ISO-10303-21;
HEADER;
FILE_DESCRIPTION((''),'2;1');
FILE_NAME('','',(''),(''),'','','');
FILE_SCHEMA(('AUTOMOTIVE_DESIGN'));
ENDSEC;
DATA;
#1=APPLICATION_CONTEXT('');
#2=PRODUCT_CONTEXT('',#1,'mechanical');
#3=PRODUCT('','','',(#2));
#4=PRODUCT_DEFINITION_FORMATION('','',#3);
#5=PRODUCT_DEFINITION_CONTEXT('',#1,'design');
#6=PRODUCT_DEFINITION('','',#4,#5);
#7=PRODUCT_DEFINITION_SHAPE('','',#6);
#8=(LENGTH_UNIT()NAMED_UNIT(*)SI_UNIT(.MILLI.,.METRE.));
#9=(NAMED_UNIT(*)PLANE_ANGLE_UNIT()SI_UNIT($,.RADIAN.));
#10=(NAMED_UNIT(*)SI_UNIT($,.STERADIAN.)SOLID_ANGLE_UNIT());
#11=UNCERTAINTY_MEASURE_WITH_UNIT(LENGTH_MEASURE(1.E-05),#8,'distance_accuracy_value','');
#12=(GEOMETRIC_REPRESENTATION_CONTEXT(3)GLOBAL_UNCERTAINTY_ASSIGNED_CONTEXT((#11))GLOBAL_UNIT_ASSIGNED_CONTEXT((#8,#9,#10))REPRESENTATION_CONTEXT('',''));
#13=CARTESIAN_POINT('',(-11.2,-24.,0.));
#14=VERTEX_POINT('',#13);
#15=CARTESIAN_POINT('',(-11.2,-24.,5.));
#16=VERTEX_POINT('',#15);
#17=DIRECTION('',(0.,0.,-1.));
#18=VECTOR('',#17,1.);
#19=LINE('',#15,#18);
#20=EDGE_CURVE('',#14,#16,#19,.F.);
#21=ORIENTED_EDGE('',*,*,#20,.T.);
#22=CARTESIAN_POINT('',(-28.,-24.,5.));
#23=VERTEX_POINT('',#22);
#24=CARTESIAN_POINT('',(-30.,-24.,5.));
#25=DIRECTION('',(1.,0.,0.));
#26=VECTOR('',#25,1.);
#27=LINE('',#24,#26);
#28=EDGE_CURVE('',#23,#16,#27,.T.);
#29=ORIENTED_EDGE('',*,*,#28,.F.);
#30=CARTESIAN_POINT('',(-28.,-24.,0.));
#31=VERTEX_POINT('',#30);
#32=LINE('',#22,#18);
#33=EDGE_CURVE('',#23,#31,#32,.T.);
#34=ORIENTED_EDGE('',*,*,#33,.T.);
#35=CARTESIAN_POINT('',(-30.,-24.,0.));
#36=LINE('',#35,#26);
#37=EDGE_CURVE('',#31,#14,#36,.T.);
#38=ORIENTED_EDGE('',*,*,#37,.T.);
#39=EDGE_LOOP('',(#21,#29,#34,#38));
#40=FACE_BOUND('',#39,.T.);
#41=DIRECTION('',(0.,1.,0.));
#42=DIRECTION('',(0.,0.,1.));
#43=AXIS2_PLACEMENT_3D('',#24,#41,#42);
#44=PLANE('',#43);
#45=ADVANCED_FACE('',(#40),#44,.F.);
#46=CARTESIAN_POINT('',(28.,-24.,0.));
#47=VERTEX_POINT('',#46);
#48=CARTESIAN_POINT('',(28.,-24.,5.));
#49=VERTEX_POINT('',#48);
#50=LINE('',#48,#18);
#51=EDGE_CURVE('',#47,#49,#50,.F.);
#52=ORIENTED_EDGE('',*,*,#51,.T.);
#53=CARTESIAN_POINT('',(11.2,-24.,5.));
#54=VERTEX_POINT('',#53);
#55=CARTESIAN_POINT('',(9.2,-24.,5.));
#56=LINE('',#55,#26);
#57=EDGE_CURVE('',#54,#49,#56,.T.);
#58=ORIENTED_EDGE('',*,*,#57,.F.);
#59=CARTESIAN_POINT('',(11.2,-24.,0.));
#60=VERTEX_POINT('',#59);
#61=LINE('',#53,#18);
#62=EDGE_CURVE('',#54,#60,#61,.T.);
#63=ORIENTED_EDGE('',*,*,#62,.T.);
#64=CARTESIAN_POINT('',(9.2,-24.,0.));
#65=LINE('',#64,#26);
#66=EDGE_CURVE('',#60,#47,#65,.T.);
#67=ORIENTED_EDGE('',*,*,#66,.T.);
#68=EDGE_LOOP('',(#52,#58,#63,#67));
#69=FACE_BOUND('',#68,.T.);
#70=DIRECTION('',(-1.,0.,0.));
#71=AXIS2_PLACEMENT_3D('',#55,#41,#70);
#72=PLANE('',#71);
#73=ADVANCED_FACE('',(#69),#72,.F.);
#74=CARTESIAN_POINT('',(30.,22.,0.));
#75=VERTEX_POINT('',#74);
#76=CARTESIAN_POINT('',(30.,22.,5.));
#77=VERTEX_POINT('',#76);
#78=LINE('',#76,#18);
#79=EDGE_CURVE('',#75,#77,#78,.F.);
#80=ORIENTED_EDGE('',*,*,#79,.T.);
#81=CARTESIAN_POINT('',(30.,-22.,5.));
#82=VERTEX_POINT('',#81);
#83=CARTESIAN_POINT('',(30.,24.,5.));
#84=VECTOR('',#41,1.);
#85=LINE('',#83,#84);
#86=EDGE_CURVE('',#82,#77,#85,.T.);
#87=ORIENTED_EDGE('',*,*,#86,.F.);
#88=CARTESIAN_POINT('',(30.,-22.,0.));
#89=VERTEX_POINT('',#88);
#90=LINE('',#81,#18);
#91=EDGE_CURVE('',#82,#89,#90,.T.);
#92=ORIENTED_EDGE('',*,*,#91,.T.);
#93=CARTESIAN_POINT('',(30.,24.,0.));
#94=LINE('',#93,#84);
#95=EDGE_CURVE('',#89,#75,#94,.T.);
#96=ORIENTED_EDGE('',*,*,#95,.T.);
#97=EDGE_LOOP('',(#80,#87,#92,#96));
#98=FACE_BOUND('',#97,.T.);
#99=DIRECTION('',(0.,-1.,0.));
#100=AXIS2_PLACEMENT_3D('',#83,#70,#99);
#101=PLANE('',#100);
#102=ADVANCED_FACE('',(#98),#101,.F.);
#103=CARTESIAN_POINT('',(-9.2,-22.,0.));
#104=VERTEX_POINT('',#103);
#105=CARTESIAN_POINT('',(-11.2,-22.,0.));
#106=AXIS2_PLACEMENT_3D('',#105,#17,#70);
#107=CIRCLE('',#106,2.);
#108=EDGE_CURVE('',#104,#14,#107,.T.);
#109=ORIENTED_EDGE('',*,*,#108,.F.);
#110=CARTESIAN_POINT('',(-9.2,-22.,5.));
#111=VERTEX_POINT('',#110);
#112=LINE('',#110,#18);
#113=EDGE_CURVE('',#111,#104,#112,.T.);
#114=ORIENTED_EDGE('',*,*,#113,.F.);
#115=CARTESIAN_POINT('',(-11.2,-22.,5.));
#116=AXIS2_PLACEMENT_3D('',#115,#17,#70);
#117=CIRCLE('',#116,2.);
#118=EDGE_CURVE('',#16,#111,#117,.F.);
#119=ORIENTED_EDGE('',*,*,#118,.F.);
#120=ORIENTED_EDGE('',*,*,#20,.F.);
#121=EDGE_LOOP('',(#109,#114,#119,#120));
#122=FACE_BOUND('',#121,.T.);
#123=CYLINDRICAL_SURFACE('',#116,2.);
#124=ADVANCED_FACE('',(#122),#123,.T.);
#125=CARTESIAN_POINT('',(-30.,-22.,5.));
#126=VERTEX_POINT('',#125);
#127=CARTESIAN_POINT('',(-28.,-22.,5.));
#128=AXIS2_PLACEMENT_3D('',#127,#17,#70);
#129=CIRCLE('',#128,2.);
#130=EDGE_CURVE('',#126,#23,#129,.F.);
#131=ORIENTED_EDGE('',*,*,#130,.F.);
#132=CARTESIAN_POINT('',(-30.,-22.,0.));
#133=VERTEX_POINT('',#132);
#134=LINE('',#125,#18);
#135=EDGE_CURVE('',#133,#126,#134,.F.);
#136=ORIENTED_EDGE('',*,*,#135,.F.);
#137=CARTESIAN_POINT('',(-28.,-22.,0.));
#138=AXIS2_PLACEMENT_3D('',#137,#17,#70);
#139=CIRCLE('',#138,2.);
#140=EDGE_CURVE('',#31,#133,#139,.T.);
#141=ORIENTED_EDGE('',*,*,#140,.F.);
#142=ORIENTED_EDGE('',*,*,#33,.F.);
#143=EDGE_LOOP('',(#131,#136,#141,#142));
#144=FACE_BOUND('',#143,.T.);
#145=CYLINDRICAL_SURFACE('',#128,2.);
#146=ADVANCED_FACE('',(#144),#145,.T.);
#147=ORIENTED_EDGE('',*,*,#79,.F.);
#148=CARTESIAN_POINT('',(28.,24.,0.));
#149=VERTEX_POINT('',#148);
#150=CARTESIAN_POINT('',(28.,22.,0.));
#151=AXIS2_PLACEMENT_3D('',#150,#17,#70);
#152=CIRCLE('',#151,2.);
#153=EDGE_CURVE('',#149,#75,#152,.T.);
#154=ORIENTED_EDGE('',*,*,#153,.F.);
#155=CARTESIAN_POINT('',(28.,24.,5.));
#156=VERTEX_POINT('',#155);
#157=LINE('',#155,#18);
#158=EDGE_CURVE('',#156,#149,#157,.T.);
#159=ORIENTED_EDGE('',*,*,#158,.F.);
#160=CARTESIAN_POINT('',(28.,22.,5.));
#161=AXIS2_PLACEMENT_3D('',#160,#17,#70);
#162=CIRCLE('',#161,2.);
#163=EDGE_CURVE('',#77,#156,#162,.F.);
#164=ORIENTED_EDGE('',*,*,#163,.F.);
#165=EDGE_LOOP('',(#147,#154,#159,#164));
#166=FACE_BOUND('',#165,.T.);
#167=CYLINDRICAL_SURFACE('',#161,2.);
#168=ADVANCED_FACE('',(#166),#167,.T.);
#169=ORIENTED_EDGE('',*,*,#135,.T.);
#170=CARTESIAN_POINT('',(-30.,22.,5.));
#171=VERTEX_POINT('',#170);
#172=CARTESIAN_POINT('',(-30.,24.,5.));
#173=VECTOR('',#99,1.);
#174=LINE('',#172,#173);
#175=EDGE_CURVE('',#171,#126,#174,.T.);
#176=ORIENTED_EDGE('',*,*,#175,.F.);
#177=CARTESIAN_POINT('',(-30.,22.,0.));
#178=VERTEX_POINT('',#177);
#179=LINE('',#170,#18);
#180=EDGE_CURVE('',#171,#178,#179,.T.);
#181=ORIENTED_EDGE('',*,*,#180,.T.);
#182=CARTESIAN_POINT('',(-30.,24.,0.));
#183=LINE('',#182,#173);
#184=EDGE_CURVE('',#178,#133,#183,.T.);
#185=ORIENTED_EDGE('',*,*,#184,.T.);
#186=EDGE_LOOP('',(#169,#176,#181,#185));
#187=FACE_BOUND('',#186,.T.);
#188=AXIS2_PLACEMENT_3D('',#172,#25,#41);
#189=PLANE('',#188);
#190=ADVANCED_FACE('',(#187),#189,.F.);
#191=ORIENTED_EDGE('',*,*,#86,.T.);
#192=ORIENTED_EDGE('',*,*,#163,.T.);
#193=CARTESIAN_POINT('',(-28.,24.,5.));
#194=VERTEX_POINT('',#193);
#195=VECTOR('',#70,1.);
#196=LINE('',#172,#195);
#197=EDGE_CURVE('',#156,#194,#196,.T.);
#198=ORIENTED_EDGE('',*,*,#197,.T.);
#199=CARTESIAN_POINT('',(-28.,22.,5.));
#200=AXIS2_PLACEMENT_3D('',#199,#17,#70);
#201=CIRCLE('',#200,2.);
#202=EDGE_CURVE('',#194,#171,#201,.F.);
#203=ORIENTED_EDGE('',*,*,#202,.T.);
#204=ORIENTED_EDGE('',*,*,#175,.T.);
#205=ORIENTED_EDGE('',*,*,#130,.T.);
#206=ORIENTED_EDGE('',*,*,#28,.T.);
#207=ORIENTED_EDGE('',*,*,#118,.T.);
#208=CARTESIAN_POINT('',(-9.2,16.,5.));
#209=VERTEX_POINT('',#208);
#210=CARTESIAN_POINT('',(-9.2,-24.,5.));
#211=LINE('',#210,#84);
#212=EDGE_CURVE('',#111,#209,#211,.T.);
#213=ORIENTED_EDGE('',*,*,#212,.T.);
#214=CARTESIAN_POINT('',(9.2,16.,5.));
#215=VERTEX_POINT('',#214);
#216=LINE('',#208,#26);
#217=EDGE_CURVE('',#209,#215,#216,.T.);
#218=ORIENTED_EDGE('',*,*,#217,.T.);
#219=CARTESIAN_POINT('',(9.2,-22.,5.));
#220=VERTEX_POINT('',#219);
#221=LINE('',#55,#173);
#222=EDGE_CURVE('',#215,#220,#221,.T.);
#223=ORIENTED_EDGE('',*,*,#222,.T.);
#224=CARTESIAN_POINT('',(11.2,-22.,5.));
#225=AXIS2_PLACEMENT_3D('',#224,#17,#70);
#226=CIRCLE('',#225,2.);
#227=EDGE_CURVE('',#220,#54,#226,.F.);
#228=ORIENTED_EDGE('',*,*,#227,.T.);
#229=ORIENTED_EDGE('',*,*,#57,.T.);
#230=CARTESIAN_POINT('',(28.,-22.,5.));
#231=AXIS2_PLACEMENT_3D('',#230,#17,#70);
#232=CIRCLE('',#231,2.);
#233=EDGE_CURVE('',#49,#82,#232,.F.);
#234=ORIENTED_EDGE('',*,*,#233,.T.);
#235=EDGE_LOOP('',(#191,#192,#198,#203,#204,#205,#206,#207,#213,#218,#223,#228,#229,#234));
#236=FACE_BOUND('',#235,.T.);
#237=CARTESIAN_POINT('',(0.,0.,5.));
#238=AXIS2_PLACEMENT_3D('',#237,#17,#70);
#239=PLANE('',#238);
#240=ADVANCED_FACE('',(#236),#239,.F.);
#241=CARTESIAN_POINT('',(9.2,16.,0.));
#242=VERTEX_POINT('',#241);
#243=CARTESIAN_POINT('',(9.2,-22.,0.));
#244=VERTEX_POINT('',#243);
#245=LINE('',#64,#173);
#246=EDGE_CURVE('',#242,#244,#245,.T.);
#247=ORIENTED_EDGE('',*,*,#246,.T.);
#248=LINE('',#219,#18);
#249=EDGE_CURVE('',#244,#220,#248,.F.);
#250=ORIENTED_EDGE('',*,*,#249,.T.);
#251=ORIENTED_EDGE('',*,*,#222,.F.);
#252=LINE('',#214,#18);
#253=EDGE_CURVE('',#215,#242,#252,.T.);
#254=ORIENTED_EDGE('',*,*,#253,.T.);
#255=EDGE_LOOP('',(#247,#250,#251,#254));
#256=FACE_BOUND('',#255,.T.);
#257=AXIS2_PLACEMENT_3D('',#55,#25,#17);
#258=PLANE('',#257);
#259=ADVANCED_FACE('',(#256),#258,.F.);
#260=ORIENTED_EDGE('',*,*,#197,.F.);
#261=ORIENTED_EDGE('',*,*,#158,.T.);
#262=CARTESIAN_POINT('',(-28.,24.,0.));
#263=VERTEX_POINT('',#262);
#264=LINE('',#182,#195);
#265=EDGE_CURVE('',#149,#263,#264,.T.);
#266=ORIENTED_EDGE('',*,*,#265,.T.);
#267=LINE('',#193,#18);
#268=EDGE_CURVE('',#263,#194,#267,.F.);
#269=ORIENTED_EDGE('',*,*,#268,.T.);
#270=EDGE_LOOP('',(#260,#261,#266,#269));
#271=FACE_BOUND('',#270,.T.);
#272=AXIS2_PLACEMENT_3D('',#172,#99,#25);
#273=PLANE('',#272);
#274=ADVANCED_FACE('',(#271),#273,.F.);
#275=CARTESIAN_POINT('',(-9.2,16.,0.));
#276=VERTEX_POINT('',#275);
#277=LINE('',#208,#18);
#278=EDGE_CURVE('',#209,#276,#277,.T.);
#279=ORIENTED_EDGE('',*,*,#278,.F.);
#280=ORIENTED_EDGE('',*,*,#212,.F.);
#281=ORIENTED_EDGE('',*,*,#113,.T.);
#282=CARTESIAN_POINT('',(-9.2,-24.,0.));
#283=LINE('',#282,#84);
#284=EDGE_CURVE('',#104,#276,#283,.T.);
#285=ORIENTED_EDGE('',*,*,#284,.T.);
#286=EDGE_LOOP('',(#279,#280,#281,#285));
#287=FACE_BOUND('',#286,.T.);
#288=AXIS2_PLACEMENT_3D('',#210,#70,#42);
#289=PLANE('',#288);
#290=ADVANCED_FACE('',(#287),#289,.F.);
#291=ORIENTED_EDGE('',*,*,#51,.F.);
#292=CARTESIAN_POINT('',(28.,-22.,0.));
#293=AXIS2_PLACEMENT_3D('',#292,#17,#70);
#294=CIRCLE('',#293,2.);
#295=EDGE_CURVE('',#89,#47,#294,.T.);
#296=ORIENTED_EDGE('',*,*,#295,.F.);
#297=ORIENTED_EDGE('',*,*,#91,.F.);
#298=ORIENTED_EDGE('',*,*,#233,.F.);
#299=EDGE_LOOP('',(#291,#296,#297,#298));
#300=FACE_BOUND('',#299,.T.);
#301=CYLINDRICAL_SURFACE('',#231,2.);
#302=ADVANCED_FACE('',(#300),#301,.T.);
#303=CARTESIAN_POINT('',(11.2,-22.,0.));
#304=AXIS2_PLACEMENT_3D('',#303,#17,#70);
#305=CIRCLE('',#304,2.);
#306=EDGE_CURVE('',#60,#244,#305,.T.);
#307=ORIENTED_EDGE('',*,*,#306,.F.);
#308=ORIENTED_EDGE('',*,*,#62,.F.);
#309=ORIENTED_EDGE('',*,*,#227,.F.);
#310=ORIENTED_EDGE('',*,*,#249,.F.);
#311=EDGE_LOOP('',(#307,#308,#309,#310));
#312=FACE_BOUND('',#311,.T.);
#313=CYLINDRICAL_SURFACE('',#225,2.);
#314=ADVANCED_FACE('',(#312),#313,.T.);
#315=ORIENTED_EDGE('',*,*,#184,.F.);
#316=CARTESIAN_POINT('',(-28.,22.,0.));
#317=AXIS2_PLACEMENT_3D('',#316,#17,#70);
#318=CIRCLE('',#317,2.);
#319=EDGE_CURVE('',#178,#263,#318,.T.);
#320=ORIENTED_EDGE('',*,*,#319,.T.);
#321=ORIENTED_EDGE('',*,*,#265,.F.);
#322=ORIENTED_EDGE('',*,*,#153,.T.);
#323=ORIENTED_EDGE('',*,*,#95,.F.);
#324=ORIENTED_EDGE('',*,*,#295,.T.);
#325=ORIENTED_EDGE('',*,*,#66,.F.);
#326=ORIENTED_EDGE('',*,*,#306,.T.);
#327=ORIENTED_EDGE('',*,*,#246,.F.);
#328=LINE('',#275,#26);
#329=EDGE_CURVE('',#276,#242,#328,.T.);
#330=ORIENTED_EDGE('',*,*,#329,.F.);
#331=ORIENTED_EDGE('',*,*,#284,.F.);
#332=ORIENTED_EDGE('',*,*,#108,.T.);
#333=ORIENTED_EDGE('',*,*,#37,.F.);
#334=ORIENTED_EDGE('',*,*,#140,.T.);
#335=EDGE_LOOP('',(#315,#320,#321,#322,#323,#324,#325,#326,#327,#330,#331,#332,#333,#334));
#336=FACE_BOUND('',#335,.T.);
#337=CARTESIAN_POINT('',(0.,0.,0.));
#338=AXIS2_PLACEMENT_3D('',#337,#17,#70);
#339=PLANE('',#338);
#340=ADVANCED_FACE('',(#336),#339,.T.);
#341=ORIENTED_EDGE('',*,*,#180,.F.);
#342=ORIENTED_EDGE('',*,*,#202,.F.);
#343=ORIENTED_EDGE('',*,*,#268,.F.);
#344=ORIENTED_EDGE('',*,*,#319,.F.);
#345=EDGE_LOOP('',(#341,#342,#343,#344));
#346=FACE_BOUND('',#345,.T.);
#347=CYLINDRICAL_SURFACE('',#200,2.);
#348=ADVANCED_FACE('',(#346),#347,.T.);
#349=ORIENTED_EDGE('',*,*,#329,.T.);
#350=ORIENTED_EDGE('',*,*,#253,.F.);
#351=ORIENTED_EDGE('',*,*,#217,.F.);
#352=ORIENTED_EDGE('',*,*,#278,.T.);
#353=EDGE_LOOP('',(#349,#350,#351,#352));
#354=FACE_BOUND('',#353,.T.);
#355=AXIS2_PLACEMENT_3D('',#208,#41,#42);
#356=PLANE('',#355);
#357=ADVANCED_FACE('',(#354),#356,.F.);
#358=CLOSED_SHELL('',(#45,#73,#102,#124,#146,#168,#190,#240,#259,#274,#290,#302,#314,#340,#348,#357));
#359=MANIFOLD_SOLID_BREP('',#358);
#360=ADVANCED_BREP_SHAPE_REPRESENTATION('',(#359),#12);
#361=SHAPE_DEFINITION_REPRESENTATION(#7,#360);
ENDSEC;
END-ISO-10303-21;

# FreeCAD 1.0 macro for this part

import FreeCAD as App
import Part
import Sketcher

V = App.Vector
Q = App.Units.Quantity


def edges_at(feature, points):
    """Names of the edges that pass closest to the given points."""
    edges = feature.Shape.Edges
    near = lambda p: min(range(len(edges)), key=lambda i: edges[i].distToShape(Part.Vertex(*p))[0])
    return sorted({f"Edge{near(p) + 1}" for p in points})

doc = App.newDocument("Part")
body = doc.addObject("PartDesign::Body", "Body")

sketch1 = body.newObject("Sketcher::SketchObject", "Sketch")
sketch1.AttachmentSupport = (doc.getObject("XY_Plane"), [""])
sketch1.MapMode = "FlatFace"
sketch1.addGeometry(Part.LineSegment(V(30, 24, 0), V(-30, 24, 0)), False)
sketch1.addGeometry(Part.LineSegment(V(-30, 24, 0), V(-30, -24, 0)), False)
sketch1.addGeometry(Part.LineSegment(V(-30, -24, 0), V(-9.2, -24, 0)), False)
sketch1.addGeometry(Part.LineSegment(V(-9.2, -24, 0), V(-9.2, 16, 0)), False)
sketch1.addGeometry(Part.LineSegment(V(-9.2, 16, 0), V(9.2, 16, 0)), False)
sketch1.addGeometry(Part.LineSegment(V(9.2, 16, 0), V(9.2, -24, 0)), False)
sketch1.addGeometry(Part.LineSegment(V(9.2, -24, 0), V(30, -24, 0)), False)
sketch1.addGeometry(Part.LineSegment(V(30, -24, 0), V(30, 24, 0)), False)
sketch1.addConstraint(Sketcher.Constraint("Coincident", 0, 2, 1, 1))
sketch1.addConstraint(Sketcher.Constraint("Coincident", 1, 2, 2, 1))
sketch1.addConstraint(Sketcher.Constraint("Coincident", 2, 2, 3, 1))
sketch1.addConstraint(Sketcher.Constraint("Coincident", 3, 2, 4, 1))
sketch1.addConstraint(Sketcher.Constraint("Coincident", 4, 2, 5, 1))
sketch1.addConstraint(Sketcher.Constraint("Coincident", 5, 2, 6, 1))
sketch1.addConstraint(Sketcher.Constraint("Coincident", 6, 2, 7, 1))
sketch1.addConstraint(Sketcher.Constraint("Coincident", 7, 2, 0, 1))
sketch1.addConstraint(Sketcher.Constraint("Horizontal", 0))
sketch1.addConstraint(Sketcher.Constraint("Vertical", 1))
sketch1.addConstraint(Sketcher.Constraint("Horizontal", 2))
sketch1.addConstraint(Sketcher.Constraint("Vertical", 3))
sketch1.addConstraint(Sketcher.Constraint("Horizontal", 4))
sketch1.addConstraint(Sketcher.Constraint("Vertical", 5))
sketch1.addConstraint(Sketcher.Constraint("Horizontal", 6))
sketch1.addConstraint(Sketcher.Constraint("Vertical", 7))
sketch1.addConstraint(Sketcher.Constraint("Symmetric", 0, 2, 6, 2, -1, 1))
sketch1.addConstraint(Sketcher.Constraint("Symmetric", 2, 2, 5, 2, -2))
sketch1.addConstraint(Sketcher.Constraint("DistanceX", 0, 2, 0, 1, Q("60 mm")))
sketch1.addConstraint(Sketcher.Constraint("DistanceY", 1, 2, 1, 1, Q("48 mm")))
sketch1.addConstraint(Sketcher.Constraint("DistanceY", 3, 1, 3, 2, Q("40 mm")))
sketch1.addConstraint(Sketcher.Constraint("DistanceX", 2, 1, 2, 2, Q("20.8 mm")))
pad1 = body.newObject("PartDesign::Pad", "Pad")
pad1.Profile = sketch1
pad1.Length = 5
doc.recompute()

fillet = body.newObject("PartDesign::Fillet", "Fillet")
fillet.Base = (pad1, edges_at(pad1, [
    (9.2, -24, 2.5),
    (-9.2, -24, 2.5),
    (-30, -24, 2.5),
    (-30, 24, 2.5),
    (30, 24, 2.5),
    (30, -24, 2.5),
]))
fillet.Radius = 2

doc.recompute()
